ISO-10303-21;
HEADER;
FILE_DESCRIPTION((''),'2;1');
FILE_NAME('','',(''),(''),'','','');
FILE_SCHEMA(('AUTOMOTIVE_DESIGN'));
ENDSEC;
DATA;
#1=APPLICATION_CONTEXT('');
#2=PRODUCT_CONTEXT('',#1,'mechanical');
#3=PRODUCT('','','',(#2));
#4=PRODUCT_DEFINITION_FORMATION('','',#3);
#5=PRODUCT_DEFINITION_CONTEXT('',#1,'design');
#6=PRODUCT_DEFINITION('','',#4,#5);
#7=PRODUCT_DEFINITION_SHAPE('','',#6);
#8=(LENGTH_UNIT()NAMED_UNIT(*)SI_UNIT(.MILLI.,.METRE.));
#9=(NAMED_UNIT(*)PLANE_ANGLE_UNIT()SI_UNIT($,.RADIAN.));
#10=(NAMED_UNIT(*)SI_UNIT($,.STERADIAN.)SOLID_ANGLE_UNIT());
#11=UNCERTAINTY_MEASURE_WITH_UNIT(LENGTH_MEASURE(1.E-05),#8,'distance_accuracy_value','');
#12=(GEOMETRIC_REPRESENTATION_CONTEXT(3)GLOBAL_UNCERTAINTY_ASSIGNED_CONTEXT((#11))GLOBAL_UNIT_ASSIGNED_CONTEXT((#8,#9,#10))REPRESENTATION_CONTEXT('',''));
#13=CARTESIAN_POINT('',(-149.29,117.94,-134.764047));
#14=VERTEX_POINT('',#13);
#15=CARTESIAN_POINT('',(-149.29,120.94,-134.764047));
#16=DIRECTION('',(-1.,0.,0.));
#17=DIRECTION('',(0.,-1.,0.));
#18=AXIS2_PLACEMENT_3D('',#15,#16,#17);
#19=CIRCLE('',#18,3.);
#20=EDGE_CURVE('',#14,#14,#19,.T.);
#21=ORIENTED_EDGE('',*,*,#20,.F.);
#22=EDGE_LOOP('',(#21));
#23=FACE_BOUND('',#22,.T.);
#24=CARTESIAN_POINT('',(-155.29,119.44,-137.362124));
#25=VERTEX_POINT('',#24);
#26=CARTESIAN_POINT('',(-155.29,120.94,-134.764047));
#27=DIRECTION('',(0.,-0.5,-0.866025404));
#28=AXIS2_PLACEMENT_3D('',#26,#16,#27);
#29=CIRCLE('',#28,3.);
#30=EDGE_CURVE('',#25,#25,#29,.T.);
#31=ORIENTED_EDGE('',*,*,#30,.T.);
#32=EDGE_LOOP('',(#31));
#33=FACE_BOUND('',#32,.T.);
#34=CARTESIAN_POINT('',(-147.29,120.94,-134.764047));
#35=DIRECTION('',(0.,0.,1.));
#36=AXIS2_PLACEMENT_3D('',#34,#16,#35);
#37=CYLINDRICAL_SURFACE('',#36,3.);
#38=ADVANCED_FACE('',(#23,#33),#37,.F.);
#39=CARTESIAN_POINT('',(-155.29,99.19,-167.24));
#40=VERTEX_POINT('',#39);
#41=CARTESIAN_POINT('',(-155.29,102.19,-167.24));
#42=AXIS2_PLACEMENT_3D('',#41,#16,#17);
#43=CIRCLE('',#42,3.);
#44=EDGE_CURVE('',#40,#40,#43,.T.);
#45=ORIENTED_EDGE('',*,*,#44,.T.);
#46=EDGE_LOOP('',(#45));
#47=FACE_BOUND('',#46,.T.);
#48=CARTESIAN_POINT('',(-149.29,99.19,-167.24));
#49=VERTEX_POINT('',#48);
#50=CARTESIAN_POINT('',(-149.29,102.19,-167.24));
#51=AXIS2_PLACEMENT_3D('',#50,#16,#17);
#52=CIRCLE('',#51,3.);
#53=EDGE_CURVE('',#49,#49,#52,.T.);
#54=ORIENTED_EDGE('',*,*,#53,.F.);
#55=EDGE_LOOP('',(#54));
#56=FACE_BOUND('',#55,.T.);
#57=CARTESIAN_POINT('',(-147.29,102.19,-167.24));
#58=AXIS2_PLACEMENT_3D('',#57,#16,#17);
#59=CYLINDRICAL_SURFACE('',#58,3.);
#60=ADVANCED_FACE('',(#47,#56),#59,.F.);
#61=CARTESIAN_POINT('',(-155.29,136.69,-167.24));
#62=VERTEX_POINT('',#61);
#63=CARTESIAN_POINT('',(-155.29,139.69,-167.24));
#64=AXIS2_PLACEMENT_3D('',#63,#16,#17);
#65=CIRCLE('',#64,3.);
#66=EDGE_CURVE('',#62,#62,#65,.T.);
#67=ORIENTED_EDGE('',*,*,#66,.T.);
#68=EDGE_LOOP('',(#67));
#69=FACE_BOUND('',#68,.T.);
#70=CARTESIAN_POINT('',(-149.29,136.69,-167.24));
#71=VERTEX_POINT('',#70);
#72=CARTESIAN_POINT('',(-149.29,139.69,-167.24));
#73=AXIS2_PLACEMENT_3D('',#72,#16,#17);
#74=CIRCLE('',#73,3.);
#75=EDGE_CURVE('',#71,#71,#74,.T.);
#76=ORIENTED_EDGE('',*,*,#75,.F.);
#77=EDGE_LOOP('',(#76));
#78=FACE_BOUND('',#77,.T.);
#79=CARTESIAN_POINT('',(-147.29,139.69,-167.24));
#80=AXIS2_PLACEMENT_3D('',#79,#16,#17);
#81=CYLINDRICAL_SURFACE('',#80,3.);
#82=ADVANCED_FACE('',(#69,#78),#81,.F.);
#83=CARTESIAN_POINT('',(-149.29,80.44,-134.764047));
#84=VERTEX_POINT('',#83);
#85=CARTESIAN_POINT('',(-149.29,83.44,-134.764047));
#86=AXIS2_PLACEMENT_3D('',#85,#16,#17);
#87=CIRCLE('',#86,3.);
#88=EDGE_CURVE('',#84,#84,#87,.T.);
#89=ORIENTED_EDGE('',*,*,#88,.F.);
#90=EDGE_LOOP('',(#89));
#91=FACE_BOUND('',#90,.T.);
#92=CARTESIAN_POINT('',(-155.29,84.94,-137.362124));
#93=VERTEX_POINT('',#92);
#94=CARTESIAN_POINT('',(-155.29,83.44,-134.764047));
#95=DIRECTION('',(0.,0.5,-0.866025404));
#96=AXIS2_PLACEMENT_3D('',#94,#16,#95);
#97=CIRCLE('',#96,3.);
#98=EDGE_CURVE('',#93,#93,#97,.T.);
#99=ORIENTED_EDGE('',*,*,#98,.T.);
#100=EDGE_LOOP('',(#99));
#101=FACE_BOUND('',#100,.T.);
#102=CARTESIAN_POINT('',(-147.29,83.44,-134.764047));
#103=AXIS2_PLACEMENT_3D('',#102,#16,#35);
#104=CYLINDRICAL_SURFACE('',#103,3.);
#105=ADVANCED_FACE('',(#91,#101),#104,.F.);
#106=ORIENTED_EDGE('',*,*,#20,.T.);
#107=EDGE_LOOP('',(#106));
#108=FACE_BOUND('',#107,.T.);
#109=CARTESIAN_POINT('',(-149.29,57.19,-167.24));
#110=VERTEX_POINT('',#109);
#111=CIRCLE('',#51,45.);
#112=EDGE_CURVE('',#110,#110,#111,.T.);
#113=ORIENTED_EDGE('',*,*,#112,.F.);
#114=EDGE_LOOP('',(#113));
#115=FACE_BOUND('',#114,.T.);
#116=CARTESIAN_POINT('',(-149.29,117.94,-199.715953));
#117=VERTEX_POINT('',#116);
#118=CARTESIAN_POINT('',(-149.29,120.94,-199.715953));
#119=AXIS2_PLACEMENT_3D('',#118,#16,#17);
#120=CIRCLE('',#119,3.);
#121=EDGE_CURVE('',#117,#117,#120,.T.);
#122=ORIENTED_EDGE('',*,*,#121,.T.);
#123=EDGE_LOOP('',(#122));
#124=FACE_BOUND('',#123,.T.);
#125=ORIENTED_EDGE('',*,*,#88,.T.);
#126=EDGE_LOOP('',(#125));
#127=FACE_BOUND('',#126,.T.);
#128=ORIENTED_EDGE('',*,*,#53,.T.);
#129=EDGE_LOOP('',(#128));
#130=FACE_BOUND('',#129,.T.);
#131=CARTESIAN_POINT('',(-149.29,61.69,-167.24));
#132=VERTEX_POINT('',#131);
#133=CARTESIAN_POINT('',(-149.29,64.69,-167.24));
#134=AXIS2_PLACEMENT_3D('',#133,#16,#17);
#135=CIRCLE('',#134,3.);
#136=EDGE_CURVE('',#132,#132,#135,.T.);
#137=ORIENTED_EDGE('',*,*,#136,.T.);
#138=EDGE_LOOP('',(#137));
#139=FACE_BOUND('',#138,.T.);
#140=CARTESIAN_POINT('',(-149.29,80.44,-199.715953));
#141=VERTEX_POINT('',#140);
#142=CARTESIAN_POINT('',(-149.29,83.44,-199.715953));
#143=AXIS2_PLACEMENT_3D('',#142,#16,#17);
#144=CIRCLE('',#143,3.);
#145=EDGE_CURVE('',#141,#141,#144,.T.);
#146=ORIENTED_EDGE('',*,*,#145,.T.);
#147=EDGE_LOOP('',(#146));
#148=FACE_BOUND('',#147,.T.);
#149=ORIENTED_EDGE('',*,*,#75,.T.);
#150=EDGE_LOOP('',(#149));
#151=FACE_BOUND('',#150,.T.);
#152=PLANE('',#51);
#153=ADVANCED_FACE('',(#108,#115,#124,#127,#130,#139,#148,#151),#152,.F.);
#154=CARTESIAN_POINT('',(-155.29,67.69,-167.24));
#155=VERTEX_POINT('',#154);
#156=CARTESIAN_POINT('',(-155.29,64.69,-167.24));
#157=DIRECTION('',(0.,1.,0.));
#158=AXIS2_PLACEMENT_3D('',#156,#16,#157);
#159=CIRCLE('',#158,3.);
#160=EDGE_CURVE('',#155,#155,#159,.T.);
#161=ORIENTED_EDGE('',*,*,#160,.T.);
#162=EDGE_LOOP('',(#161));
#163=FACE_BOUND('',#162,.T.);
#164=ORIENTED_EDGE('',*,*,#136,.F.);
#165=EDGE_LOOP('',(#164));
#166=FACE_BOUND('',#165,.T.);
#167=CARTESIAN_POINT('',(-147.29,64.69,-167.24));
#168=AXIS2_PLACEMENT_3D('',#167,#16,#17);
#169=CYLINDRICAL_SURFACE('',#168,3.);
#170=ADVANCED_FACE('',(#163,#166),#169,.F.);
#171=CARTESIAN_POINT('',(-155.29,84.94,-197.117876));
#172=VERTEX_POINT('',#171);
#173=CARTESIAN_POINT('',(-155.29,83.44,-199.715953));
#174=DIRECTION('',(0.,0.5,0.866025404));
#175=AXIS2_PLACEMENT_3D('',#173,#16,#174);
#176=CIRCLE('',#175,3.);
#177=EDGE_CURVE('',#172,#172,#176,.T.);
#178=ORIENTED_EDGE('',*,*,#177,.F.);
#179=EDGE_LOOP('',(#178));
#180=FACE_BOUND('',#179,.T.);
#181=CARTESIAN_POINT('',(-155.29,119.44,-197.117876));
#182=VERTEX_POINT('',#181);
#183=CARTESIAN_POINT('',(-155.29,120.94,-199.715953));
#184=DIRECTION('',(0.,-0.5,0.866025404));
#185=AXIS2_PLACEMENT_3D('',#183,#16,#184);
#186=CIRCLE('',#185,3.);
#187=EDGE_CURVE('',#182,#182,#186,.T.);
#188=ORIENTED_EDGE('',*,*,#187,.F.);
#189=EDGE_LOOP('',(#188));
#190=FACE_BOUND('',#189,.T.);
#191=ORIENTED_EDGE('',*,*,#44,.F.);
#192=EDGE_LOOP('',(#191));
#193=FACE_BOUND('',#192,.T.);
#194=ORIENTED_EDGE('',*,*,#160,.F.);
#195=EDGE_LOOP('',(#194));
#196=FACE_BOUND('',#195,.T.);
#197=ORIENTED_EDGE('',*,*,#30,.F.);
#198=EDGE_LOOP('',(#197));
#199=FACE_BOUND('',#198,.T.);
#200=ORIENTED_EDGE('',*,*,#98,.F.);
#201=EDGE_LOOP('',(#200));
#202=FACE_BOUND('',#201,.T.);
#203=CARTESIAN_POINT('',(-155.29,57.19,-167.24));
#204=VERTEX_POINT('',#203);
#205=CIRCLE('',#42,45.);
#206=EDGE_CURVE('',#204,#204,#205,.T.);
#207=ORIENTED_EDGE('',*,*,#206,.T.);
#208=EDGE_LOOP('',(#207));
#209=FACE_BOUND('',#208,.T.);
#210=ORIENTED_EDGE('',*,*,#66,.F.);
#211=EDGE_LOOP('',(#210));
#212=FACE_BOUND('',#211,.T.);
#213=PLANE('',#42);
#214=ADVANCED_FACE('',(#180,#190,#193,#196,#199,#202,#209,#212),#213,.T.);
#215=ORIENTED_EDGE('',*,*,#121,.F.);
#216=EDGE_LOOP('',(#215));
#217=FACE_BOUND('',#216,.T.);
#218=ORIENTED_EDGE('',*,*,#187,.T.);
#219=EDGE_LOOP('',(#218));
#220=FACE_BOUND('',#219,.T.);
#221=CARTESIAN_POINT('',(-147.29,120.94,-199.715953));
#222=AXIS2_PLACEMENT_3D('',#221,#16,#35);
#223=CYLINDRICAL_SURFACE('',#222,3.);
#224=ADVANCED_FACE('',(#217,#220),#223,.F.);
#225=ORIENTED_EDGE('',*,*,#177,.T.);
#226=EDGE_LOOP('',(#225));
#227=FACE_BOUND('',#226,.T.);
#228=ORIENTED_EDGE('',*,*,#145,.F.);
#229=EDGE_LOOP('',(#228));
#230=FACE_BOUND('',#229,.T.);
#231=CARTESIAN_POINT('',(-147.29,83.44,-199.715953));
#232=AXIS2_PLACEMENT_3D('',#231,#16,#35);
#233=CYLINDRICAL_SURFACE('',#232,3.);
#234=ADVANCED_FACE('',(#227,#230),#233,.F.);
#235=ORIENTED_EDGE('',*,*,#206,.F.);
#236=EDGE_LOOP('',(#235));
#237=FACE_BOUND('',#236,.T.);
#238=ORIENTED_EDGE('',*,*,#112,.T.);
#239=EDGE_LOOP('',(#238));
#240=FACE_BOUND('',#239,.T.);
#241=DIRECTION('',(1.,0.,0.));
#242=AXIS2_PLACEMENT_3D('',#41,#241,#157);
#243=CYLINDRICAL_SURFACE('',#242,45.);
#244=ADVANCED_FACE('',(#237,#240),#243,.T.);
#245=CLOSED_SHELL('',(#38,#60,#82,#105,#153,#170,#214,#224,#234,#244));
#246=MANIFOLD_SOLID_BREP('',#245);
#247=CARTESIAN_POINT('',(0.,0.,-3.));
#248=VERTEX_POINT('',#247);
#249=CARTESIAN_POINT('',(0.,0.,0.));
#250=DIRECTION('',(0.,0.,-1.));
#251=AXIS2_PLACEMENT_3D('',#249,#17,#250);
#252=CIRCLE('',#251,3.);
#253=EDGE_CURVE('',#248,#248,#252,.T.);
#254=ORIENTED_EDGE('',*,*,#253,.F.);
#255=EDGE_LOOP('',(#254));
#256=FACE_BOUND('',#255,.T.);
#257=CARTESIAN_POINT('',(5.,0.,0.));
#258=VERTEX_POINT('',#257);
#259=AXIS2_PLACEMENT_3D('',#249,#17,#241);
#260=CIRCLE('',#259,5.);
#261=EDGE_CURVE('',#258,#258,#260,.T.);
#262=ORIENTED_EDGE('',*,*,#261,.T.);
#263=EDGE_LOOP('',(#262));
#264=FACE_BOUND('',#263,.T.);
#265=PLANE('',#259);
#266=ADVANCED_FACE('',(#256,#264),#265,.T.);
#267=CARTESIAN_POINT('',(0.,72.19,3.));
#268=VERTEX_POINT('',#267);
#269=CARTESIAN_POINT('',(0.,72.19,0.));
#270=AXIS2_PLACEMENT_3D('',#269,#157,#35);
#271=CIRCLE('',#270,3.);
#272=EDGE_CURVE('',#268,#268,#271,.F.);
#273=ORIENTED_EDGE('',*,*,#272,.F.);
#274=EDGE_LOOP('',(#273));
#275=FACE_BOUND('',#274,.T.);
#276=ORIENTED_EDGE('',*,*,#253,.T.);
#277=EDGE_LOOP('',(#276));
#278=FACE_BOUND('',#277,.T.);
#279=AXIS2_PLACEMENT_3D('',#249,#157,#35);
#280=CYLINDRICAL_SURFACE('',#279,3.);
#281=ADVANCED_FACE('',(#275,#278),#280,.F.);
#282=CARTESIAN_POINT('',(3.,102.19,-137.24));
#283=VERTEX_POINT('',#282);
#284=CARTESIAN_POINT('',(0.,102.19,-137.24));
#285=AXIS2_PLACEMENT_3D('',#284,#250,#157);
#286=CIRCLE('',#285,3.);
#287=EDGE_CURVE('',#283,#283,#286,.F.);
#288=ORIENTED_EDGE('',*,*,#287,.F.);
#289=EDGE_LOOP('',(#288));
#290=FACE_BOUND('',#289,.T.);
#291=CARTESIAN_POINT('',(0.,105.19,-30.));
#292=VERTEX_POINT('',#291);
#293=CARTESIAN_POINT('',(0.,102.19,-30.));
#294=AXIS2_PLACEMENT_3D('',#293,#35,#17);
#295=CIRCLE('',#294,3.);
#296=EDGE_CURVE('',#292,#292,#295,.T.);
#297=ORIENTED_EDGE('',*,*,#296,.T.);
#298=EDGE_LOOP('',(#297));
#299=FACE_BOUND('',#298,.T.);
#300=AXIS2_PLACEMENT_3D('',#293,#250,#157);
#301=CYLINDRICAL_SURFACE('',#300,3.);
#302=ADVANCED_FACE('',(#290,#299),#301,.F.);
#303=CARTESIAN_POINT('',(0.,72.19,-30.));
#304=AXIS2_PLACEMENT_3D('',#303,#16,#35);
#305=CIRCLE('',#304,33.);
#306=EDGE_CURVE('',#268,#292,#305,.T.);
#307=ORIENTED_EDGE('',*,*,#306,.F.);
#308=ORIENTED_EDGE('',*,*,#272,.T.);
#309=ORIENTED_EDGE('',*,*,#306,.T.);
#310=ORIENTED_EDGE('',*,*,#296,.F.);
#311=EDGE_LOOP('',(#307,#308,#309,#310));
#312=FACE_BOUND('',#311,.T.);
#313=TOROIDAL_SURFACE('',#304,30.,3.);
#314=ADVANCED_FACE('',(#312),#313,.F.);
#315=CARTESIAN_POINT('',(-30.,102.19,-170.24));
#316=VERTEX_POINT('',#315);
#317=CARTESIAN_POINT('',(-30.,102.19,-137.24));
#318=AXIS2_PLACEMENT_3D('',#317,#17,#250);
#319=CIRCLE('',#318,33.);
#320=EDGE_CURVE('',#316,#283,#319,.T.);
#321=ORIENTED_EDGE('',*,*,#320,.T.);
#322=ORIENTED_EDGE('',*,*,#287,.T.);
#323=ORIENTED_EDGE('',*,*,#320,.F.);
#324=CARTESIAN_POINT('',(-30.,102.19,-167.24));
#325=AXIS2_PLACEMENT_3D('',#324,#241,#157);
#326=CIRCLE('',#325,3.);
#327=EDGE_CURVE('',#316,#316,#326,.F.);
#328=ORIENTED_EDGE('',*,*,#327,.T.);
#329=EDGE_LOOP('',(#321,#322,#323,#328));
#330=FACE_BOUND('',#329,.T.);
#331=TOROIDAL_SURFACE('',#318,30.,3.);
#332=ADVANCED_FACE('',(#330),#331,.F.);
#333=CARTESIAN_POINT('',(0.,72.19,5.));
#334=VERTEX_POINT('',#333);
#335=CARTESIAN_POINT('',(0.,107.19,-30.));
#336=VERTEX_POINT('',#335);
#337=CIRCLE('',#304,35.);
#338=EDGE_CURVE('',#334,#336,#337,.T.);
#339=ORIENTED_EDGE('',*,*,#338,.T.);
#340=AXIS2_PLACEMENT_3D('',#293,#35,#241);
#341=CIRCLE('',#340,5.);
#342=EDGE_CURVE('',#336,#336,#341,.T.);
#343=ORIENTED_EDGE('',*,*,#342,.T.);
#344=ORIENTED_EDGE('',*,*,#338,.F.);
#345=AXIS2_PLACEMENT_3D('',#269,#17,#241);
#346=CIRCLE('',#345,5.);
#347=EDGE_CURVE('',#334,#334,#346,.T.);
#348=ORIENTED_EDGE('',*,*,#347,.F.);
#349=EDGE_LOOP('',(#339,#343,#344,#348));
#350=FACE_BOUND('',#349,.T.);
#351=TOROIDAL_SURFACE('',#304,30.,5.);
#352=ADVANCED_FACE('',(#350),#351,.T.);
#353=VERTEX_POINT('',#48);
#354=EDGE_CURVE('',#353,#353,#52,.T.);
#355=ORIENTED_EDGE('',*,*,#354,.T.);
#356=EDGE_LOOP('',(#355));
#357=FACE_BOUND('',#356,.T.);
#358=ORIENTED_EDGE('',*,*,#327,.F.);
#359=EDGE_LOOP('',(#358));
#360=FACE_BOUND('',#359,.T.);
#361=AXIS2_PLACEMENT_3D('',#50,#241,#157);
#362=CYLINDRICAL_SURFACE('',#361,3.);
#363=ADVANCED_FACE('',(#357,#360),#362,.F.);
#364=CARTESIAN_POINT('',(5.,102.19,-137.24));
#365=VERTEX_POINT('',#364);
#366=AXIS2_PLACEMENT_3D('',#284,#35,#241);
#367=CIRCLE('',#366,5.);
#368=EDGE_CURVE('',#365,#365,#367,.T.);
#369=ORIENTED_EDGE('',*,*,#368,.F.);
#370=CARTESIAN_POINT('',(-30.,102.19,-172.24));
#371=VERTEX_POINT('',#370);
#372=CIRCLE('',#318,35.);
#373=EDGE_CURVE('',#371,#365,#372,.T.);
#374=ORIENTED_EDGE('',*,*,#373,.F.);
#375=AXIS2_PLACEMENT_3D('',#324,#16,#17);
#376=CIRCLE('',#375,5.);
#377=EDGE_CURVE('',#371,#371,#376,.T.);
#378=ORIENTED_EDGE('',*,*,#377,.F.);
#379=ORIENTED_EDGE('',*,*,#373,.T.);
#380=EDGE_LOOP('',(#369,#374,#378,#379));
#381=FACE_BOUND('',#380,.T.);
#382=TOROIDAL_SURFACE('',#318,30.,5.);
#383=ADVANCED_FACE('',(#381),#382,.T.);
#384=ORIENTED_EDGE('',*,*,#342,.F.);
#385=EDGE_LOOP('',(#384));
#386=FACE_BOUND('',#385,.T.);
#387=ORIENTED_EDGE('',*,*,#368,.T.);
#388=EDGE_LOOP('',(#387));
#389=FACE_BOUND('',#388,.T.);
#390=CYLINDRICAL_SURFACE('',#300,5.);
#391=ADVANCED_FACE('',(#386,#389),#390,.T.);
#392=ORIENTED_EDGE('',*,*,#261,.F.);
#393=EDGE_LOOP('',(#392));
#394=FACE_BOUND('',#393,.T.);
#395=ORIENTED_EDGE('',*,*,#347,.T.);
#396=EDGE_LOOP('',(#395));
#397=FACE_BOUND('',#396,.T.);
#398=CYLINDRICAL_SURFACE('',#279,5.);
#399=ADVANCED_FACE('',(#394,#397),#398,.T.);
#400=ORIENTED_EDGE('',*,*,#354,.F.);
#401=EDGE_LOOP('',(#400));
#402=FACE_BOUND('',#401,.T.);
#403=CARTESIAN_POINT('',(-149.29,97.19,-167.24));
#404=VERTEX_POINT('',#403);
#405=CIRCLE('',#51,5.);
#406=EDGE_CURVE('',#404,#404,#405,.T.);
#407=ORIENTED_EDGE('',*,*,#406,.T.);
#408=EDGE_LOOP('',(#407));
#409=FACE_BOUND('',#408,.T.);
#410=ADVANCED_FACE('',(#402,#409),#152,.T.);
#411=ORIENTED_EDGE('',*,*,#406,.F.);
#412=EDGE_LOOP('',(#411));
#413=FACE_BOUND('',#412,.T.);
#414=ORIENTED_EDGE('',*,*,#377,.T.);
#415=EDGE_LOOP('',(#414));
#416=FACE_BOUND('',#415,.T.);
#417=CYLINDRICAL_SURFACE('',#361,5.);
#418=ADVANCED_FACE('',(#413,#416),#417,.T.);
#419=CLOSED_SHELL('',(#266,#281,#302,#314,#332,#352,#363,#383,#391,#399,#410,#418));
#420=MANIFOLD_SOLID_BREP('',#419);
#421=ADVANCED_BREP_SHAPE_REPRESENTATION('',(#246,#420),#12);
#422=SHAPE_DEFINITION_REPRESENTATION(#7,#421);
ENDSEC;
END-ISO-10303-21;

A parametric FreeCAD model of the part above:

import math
import FreeCAD as App
import Part
import Sketcher
from FreeCAD import Vector


def faces_at(feature, points):
    """Names of the faces that lie closest to the given points."""
    faces = feature.Shape.Faces
    near = lambda p: min(range(len(faces)), key=lambda i: faces[i].distToShape(Part.Vertex(*p))[0])
    return sorted({f"Face{near(p) + 1}" for p in points})

doc = App.newDocument("Part")
body = doc.addObject("PartDesign::Body", "Body")

sketch1 = body.newObject("Sketcher::SketchObject", "Sketch")
sketch1.AttachmentSupport = (doc.getObject("XZ_Plane"), [""])
sketch1.MapMode = "FlatFace"
sketch1.addGeometry(Part.Circle(Vector(0, 0, 0), Vector(0, 0, 1), 5), False)
sketch1.addConstraint([
    Sketcher.Constraint("Coincident", 0, 3, -1, 1),
    Sketcher.Constraint("Diameter", 0, 10.0),
])

sketch2 = body.newObject("Sketcher::SketchObject", "Sketch001")
sketch2.AttachmentSupport = (doc.getObject("YZ_Plane"), [""])
sketch2.MapMode = "FlatFace"
sketch2.addGeometry([
    Part.LineSegment(Vector(0, 0, 0), Vector(72, 0, 0)),
    Part.ArcOfCircle(Part.Circle(Vector(72, -30, 0), Vector(0, 0, 1), 30), math.radians(0), math.radians(90)),
    Part.LineSegment(Vector(102, -30, 0), Vector(102, -137, 0)),
], False)
sketch2.addConstraint([
    Sketcher.Constraint("Tangent", 0, 2, 1, 2),
    Sketcher.Constraint("Tangent", 1, 1, 2, 1),
    Sketcher.Constraint("Horizontal", 0),
    Sketcher.Constraint("Vertical", 2),
    Sketcher.Constraint("Coincident", 0, 1, -1, 1),
    Sketcher.Constraint("Radius", 1, 30.0),
    Sketcher.Constraint("DistanceX", 0, 1, 0, 2, 72.19),
    Sketcher.Constraint("DistanceY", 2, 2, 2, 1, 107.24),
])
doc.recompute()

additivepipe = body.newObject("PartDesign::AdditivePipe", "AdditivePipe")
additivepipe.Profile = sketch1
additivepipe.Spine = (sketch2, ["Edge1", "Edge2", "Edge3"])

sketch3 = body.newObject("Sketcher::SketchObject", "Sketch002")
sketch3.AttachmentSupport = (doc.getObject("YZ_Plane"), [""])
sketch3.MapMode = "FlatFace"
sketch3.AttachmentOffset = App.Placement(Vector(0, 0, -30), App.Rotation())
sketch3.addGeometry(Part.Circle(Vector(102, -167, 0), Vector(0, 0, 1), 5), False)
sketch3.addConstraint([
    Sketcher.Constraint("Diameter", 0, 10.0),
    Sketcher.Constraint("DistanceX", -1, 1, 0, 3, 102.19),
    Sketcher.Constraint("DistanceY", 0, 3, -1, 1, 167.24),
])

sketch4 = body.newObject("Sketcher::SketchObject", "Sketch003")
sketch4.AttachmentSupport = (doc.getObject("XZ_Plane"), [""])
sketch4.MapMode = "FlatFace"
sketch4.AttachmentOffset = App.Placement(Vector(0, 0, -102.19), App.Rotation())
sketch4.addGeometry(Part.ArcOfCircle(Part.Circle(Vector(-30, -137, 0), Vector(0, 0, 1), 30), math.radians(-90), math.radians(0)), False)
sketch4.addConstraint([
    Sketcher.Constraint("PointOnObject", 0, 2, -2),
    Sketcher.Constraint("Radius", 0, 30.0),
    Sketcher.Constraint("DistanceX", 0, 1, -1, 1, 30.0),
    Sketcher.Constraint("DistanceY", 0, 1, 0, 2, 30.0),
    Sketcher.Constraint("DistanceY", 0, 3, -1, 1, 137.24),
])
doc.recompute()

additivepipe2 = body.newObject("PartDesign::AdditivePipe", "AdditivePipe001")
additivepipe2.Profile = sketch3
additivepipe2.Spine = (sketch4, ["Edge1"])

sketch5 = body.newObject("Sketcher::SketchObject", "Sketch004")
sketch5.AttachmentSupport = (doc.getObject("YZ_Plane"), [""])
sketch5.MapMode = "FlatFace"
sketch5.AttachmentOffset = App.Placement(Vector(0, 0, -30), App.Rotation())
sketch5.addGeometry(Part.Circle(Vector(102, -167, 0), Vector(0, 0, 1), 5), False)
sketch5.addConstraint([
    Sketcher.Constraint("Diameter", 0, 10.0),
    Sketcher.Constraint("DistanceX", -1, 1, 0, 3, 102.19),
    Sketcher.Constraint("DistanceY", 0, 3, -1, 1, 167.24),
])
pad1 = body.newObject("PartDesign::Pad", "Pad")
pad1.Profile = sketch5
pad1.Length = 119.29
pad1.Reversed = True
doc.recompute()

thickness = body.newObject("PartDesign::Thickness", "Thickness")
thickness.Base = (pad1, faces_at(pad1, [(-149.29, 102.19, -167.24)]))
thickness.Value = 2
thickness.Reversed = True
thickness.Join = "Intersection"

sketch6 = body.newObject("Sketcher::SketchObject", "Sketch005")
sketch6.AttachmentSupport = (doc.getObject("XZ_Plane"), [""])
sketch6.MapMode = "FlatFace"
sketch6.AttachmentOffset = App.Placement(Vector(0, 0, -3.29), App.Rotation())
sketch6.addGeometry(Part.Circle(Vector(0, 0, 0), Vector(0, 0, 1), 3), False)
sketch6.addConstraint([
    Sketcher.Constraint("Coincident", 0, 3, -1, 1),
    Sketcher.Constraint("Diameter", 0, 6.0),
])
pocket1 = body.newObject("PartDesign::Pocket", "Pocket")
pocket1.Profile = sketch6
pocket1.Length = 3.29
pocket1.Reversed = True
body2 = doc.addObject("PartDesign::Body", "Body001")

sketch7 = body2.newObject("Sketcher::SketchObject", "Sketch006")
sketch7.AttachmentSupport = (doc.getObject("YZ_Plane001"), [""])
sketch7.MapMode = "FlatFace"
sketch7.AttachmentOffset = App.Placement(Vector(0, 0, -149.29), App.Rotation())
sketch7.addGeometry(Part.Circle(Vector(102, -167, 0), Vector(0, 0, 1), 45), False)
sketch7.addConstraint([
    Sketcher.Constraint("Diameter", 0, 90.0),
    Sketcher.Constraint("DistanceX", -1, 1, 0, 3, 102.19),
    Sketcher.Constraint("DistanceY", 0, 3, -1, 1, 167.24),
])
pad2 = body2.newObject("PartDesign::Pad", "Pad001")
pad2.Profile = sketch7
pad2.Length = 6
pad2.Reversed = True

sketch8 = body2.newObject("Sketcher::SketchObject", "Sketch007")
sketch8.AttachmentSupport = (doc.getObject("YZ_Plane001"), [""])
sketch8.MapMode = "FlatFace"
sketch8.AttachmentOffset = App.Placement(Vector(0, 0, -147.29), App.Rotation())
sketch8.addGeometry([
    Part.Circle(Vector(102.2, -167.2, 0), Vector(0, 0, 1), 3),
    Part.Circle(Vector(139.7, -167.2, 0), Vector(0, 0, 1), 3),
], False)
sketch8.addConstraint([
    Sketcher.Constraint("Equal", 0, 1),
    Sketcher.Constraint("Horizontal", 0, 3, 1, 3),
    Sketcher.Constraint("Diameter", 0, 6.0),
    Sketcher.Constraint("DistanceX", 0, 3, 1, 3, 37.5),
    Sketcher.Constraint("DistanceX", -1, 1, 0, 3, 102.19),
    Sketcher.Constraint("DistanceY", 0, 3, -1, 1, 167.24),
])
pocket2 = body2.newObject("PartDesign::Pocket", "Pocket001")
pocket2.Profile = sketch8
pocket2.Length = 8
doc.recompute()

datumline = body2.newObject("PartDesign::Line", "DatumLine")
datumline.Placement = App.Placement(Vector(0, 102.19, -167.24), App.Rotation(Vector(0, 0, 1), Vector(1, 0, 0)))
polarpattern = body2.newObject("PartDesign::PolarPattern", "PolarPattern")
polarpattern.Originals = [pocket2]
polarpattern.Axis = (datumline, [""])
polarpattern.Angle = 360
polarpattern.Occurrences = 6
body2.Tip = polarpattern

doc.recompute()
